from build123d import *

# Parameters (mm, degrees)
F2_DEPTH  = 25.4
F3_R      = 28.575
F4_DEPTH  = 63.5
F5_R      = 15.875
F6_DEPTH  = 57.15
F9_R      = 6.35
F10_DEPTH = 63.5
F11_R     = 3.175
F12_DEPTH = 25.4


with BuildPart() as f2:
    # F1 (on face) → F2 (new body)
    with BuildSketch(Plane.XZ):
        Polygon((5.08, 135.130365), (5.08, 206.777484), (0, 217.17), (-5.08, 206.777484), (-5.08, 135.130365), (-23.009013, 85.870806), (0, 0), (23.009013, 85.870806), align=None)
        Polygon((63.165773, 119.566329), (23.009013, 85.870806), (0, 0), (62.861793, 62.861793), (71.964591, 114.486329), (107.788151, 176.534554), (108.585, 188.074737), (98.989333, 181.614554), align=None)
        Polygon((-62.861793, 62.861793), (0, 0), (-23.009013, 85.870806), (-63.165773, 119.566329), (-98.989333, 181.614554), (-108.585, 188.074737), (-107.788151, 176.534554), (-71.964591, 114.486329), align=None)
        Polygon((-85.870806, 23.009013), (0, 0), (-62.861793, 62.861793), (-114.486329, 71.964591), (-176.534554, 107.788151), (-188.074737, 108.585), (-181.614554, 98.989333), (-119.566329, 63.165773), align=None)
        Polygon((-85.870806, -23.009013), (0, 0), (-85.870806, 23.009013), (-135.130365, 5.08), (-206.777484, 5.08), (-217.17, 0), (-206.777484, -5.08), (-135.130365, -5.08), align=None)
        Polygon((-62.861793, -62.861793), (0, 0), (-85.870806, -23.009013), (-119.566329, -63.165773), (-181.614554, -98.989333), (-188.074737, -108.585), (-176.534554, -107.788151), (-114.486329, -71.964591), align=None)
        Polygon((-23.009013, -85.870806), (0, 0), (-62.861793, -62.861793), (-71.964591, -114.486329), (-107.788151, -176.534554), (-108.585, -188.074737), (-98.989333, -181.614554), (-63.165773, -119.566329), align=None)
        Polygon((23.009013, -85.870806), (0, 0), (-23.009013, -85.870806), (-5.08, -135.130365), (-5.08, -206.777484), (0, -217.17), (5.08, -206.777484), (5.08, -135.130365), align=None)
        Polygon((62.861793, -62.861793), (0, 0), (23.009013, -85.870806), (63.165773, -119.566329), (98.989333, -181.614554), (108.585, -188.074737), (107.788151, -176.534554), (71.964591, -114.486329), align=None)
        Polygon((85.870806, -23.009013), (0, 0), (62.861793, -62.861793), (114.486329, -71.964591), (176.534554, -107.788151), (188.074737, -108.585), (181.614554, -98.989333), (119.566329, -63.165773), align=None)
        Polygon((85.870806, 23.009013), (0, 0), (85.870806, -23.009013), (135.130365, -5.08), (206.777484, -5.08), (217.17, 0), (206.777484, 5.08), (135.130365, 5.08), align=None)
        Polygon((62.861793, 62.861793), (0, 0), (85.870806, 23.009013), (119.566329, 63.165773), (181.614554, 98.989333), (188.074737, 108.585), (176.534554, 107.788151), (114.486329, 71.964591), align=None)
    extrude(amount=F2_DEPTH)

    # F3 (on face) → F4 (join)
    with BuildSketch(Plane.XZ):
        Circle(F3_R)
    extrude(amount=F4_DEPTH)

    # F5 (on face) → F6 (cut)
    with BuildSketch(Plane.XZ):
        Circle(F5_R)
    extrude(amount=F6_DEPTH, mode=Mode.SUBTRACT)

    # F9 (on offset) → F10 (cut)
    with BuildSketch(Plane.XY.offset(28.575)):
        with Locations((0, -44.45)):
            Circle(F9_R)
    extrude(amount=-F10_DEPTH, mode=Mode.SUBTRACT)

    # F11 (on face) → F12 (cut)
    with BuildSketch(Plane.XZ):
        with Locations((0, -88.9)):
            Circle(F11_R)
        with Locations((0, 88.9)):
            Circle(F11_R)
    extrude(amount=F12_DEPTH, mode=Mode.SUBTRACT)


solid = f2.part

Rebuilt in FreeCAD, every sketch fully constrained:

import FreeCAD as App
import Part
import Sketcher
from FreeCAD import Vector
Q = App.Units.Quantity


def add_polygon(sketch, points):
    """Adds a closed chain of lines whose ends are joined by coincident constraints."""
    first, n = sketch.GeometryCount, len(points)
    for a, b in zip(points, points[1:] + points[:1]):
        sketch.addGeometry(Part.LineSegment(App.Vector(*a, 0), App.Vector(*b, 0)), False)
    for i in range(n):
        sketch.addConstraint(Sketcher.Constraint("Coincident", first + i, 2, first + (i + 1) % n, 1))

doc = App.newDocument("Part")
body = doc.addObject("PartDesign::Body", "Body")

sketch1 = doc.addObject("Sketcher::SketchObject", "Sketch")
body.addObject(sketch1)
sketch1.AttachmentSupport = (doc.XZ_Plane, [""])
sketch1.MapMode = "FlatFace"
add_polygon(sketch1, [(5.08, 135.130365), (5.08, 206.777484), (0, 217.17), (-5.08, 206.777484), (-5.08, 135.130365), (-23.009013, 85.870806), (-63.165773, 119.566329), (-98.989333, 181.614554), (-108.585, 188.074737), (-107.788151, 176.534554), (-71.964591, 114.486329), (-62.861793, 62.861793), (-114.486329, 71.964591), (-176.534554, 107.788151), (-188.074737, 108.585), (-181.614554, 98.989333), (-119.566329, 63.165773), (-85.870806, 23.009013), (-135.130365, 5.08), (-206.777484, 5.08), (-217.17, 0), (-206.777484, -5.08), (-135.130365, -5.08), (-85.870806, -23.009013), (-119.566329, -63.165773), (-181.614554, -98.989333), (-188.074737, -108.585), (-176.534554, -107.788151), (-114.486329, -71.964591), (-62.861793, -62.861793), (-71.964591, -114.486329), (-107.788151, -176.534554), (-108.585, -188.074737), (-98.989333, -181.614554), (-63.165773, -119.566329), (-23.009013, -85.870806), (-5.08, -135.130365), (-5.08, -206.777484), (0, -217.17), (5.08, -206.777484), (5.08, -135.130365), (23.009013, -85.870806), (63.165773, -119.566329), (98.989333, -181.614554), (108.585, -188.074737), (107.788151, -176.534554), (71.964591, -114.486329), (62.861793, -62.861793), (114.486329, -71.964591), (176.534554, -107.788151), (188.074737, -108.585), (181.614554, -98.989333), (119.566329, -63.165773), (85.870806, -23.009013), (135.130365, -5.08), (206.777484, -5.08), (217.17, 0), (206.777484, 5.08), (135.130365, 5.08), (85.870806, 23.009013), (119.566329, 63.165773), (181.614554, 98.989333), (188.074737, 108.585), (176.534554, 107.788151), (114.486329, 71.964591), (62.861793, 62.861793), (71.964591, 114.486329), (107.788151, 176.534554), (108.585, 188.074737), (98.989333, 181.614554), (63.165773, 119.566329), (23.009013, 85.870806)])
sketch1.addConstraint(Sketcher.Constraint("Vertical", 0))
sketch1.addConstraint(Sketcher.Constraint("Vertical", 3))
sketch1.addConstraint(Sketcher.Constraint("Horizontal", 18))
sketch1.addConstraint(Sketcher.Constraint("Horizontal", 21))
sketch1.addConstraint(Sketcher.Constraint("Vertical", 36))
sketch1.addConstraint(Sketcher.Constraint("Vertical", 39))
sketch1.addConstraint(Sketcher.Constraint("Horizontal", 54))
sketch1.addConstraint(Sketcher.Constraint("Horizontal", 57))
sketch1.addConstraint(Sketcher.Constraint("Symmetric", 0, 2, 36, 2, -1, 1))
sketch1.addConstraint(Sketcher.Constraint("Symmetric", 1, 2, 37, 2, -1, 1))
sketch1.addConstraint(Sketcher.Constraint("Symmetric", 2, 2, 38, 2, -1, 1))
sketch1.addConstraint(Sketcher.Constraint("Symmetric", 4, 2, 40, 2, -1, 1))
sketch1.addConstraint(Sketcher.Constraint("Symmetric", 5, 2, 41, 2, -1, 1))
sketch1.addConstraint(Sketcher.Constraint("Symmetric", 6, 2, 42, 2, -1, 1))
sketch1.addConstraint(Sketcher.Constraint("Symmetric", 7, 2, 43, 2, -1, 1))
sketch1.addConstraint(Sketcher.Constraint("Symmetric", 8, 2, 44, 2, -1, 1))
sketch1.addConstraint(Sketcher.Constraint("Symmetric", 9, 2, 45, 2, -1, 1))
sketch1.addConstraint(Sketcher.Constraint("Symmetric", 10, 2, 46, 2, -1, 1))
sketch1.addConstraint(Sketcher.Constraint("Symmetric", 11, 2, 47, 2, -1, 1))
sketch1.addConstraint(Sketcher.Constraint("Symmetric", 12, 2, 48, 2, -1, 1))
sketch1.addConstraint(Sketcher.Constraint("Symmetric", 13, 2, 49, 2, -1, 1))
sketch1.addConstraint(Sketcher.Constraint("Symmetric", 14, 2, 50, 2, -1, 1))
sketch1.addConstraint(Sketcher.Constraint("Symmetric", 15, 2, 51, 2, -1, 1))
sketch1.addConstraint(Sketcher.Constraint("Symmetric", 16, 2, 52, 2, -1, 1))
sketch1.addConstraint(Sketcher.Constraint("Symmetric", 17, 2, 53, 2, -1, 1))
sketch1.addConstraint(Sketcher.Constraint("Symmetric", 19, 2, 55, 2, -1, 1))
sketch1.addConstraint(Sketcher.Constraint("Symmetric", 20, 2, 56, 2, -1, 1))
sketch1.addConstraint(Sketcher.Constraint("Symmetric", 22, 2, 58, 2, -1, 1))
sketch1.addConstraint(Sketcher.Constraint("Symmetric", 23, 2, 59, 2, -1, 1))
sketch1.addConstraint(Sketcher.Constraint("Symmetric", 24, 2, 60, 2, -1, 1))
sketch1.addConstraint(Sketcher.Constraint("Symmetric", 25, 2, 61, 2, -1, 1))
sketch1.addConstraint(Sketcher.Constraint("Symmetric", 26, 2, 62, 2, -1, 1))
sketch1.addConstraint(Sketcher.Constraint("Symmetric", 27, 2, 63, 2, -1, 1))
sketch1.addConstraint(Sketcher.Constraint("Symmetric", 28, 2, 64, 2, -1, 1))
sketch1.addConstraint(Sketcher.Constraint("Symmetric", 29, 2, 65, 2, -1, 1))
sketch1.addConstraint(Sketcher.Constraint("Symmetric", 30, 2, 66, 2, -1, 1))
sketch1.addConstraint(Sketcher.Constraint("Symmetric", 31, 2, 67, 2, -1, 1))
sketch1.addConstraint(Sketcher.Constraint("Symmetric", 32, 2, 68, 2, -1, 1))
sketch1.addConstraint(Sketcher.Constraint("Symmetric", 33, 2, 69, 2, -1, 1))
sketch1.addConstraint(Sketcher.Constraint("Symmetric", 34, 2, 70, 2, -1, 1))
sketch1.addConstraint(Sketcher.Constraint("Symmetric", 0, 2, 2, 2, -2))
sketch1.addConstraint(Sketcher.Constraint("Symmetric", 34, 2, 40, 2, -2))
sketch1.addConstraint(Sketcher.Constraint("Symmetric", 33, 2, 41, 2, -2))
sketch1.addConstraint(Sketcher.Constraint("Symmetric", 32, 2, 42, 2, -2))
sketch1.addConstraint(Sketcher.Constraint("Symmetric", 31, 2, 43, 2, -2))
sketch1.addConstraint(Sketcher.Constraint("Symmetric", 30, 2, 44, 2, -2))
sketch1.addConstraint(Sketcher.Constraint("Symmetric", 29, 2, 45, 2, -2))
sketch1.addConstraint(Sketcher.Constraint("Symmetric", 28, 2, 46, 2, -2))
sketch1.addConstraint(Sketcher.Constraint("Symmetric", 27, 2, 47, 2, -2))
sketch1.addConstraint(Sketcher.Constraint("Symmetric", 26, 2, 48, 2, -2))
sketch1.addConstraint(Sketcher.Constraint("Symmetric", 25, 2, 49, 2, -2))
sketch1.addConstraint(Sketcher.Constraint("Symmetric", 24, 2, 50, 2, -2))
sketch1.addConstraint(Sketcher.Constraint("Symmetric", 23, 2, 51, 2, -2))
sketch1.addConstraint(Sketcher.Constraint("Symmetric", 22, 2, 52, 2, -2))
sketch1.addConstraint(Sketcher.Constraint("Symmetric", 21, 2, 53, 2, -2))
sketch1.addConstraint(Sketcher.Constraint("PointOnObject", 1, 2, -2))
sketch1.addConstraint(Sketcher.Constraint("PointOnObject", 19, 2, -1))
sketch1.addConstraint(Sketcher.Constraint("Parallel", 6, 9))
sketch1.addConstraint(Sketcher.Constraint("Parallel", 12, 15))
sketch1.addConstraint(Sketcher.Constraint("Perpendicular", 1, 19))
sketch1.addConstraint(Sketcher.Constraint("Perpendicular", 2, 20))
sketch1.addConstraint(Sketcher.Constraint("Perpendicular", 4, 22))
sketch1.addConstraint(Sketcher.Constraint("Perpendicular", 5, 23))
sketch1.addConstraint(Sketcher.Constraint("Perpendicular", 9, 24))
sketch1.addConstraint(Sketcher.Constraint("Perpendicular", 7, 25))
sketch1.addConstraint(Sketcher.Constraint("Perpendicular", 8, 26))
sketch1.addConstraint(Sketcher.Constraint("Perpendicular", 10, 28))
sketch1.addConstraint(Sketcher.Constraint("Perpendicular", 17, 35))
sketch1.addConstraint(Sketcher.Constraint("Perpendicular", 22, 40))
sketch1.addConstraint(Sketcher.Constraint("Perpendicular", 37, 55))
sketch1.addConstraint(Sketcher.Constraint("Perpendicular", 40, 58))
sketch1.addConstraint(Sketcher.Constraint("Perpendicular", 53, 71))
sketch1.addConstraint(Sketcher.Constraint("Equal", 57, 0))
sketch1.addConstraint(Sketcher.Constraint("Equal", 4, 5))
sketch1.addConstraint(Sketcher.Constraint("Equal", 2, 7))
sketch1.addConstraint(Sketcher.Constraint("Equal", 7, 8))
sketch1.addConstraint(Sketcher.Constraint("Equal", 6, 9))
sketch1.addConstraint(Sketcher.Constraint("Equal", 5, 10))
sketch1.addConstraint(Sketcher.Constraint("Equal", 10, 11))
sketch1.addConstraint(Sketcher.Constraint("Equal", 9, 12))
sketch1.addConstraint(Sketcher.Constraint("Equal", 8, 13))
sketch1.addConstraint(Sketcher.Constraint("Equal", 13, 14))
sketch1.addConstraint(Sketcher.Constraint("Equal", 12, 15))
sketch1.addConstraint(Sketcher.Constraint("Equal", 11, 16))
sketch1.addConstraint(Sketcher.Constraint("Equal", 16, 17))
sketch1.addConstraint(Sketcher.Constraint("Equal", 14, 19))
sketch1.addConstraint(Sketcher.Constraint("Angle", 4, Q("-110 deg")))
sketch1.addConstraint(Sketcher.Constraint("Angle", 5, Q("140 deg")))
sketch1.addConstraint(Sketcher.Constraint("Angle", 6, Q("120 deg")))
sketch1.addConstraint(Sketcher.Constraint("Angle", 10, Q("-80.000001 deg")))
sketch1.addConstraint(Sketcher.Constraint("DistanceX", -1, 1, 0, 2, Q("0.2 in")))
sketch1.addConstraint(Sketcher.Constraint("DistanceY", -1, 1, 1, 2, Q("8.55 in")))
sketch1.addConstraint(Sketcher.Constraint("Angle", 1, Q("116.05 deg")))
sketch1.addConstraint(Sketcher.Constraint("Angle", 7, Q("146.049999 deg")))
sketch1.addConstraint(Sketcher.Constraint("Angle", 8, Q("-86.049999 deg")))
sketch1.addConstraint(Sketcher.Constraint("DistanceX", 7, 2, -1, 1, Q("4.275 in")))
sketch1.addConstraint(Sketcher.Constraint("DistanceX", 18, 2, 18, 1, 71.647119))
pad1 = doc.addObject("PartDesign::Pad", "Pad")
body.addObject(pad1)
pad1.Profile = sketch1
pad1.Length = Q("1 in")

sketch2 = doc.addObject("Sketcher::SketchObject", "Sketch001")
body.addObject(sketch2)
sketch2.AttachmentSupport = (doc.XZ_Plane, [""])
sketch2.MapMode = "FlatFace"
sketch2.addGeometry(Part.Circle(Vector(0, 0, 0), Vector(0, 0, 1), 28.575), False)
sketch2.addConstraint(Sketcher.Constraint("Coincident", 0, 3, -1, 1))
sketch2.addConstraint(Sketcher.Constraint("Diameter", 0, Q("2.25 in")))
pad2 = doc.addObject("PartDesign::Pad", "Pad001")
body.addObject(pad2)
pad2.Profile = sketch2
pad2.Length = Q("2.5 in")

sketch3 = doc.addObject("Sketcher::SketchObject", "Sketch002")
body.addObject(sketch3)
sketch3.AttachmentSupport = (doc.XZ_Plane, [""])
sketch3.MapMode = "FlatFace"
sketch3.addGeometry(Part.Circle(Vector(0, 0, 0), Vector(0, 0, 1), 15.875), False)
sketch3.addConstraint(Sketcher.Constraint("Coincident", 0, 3, -1, 1))
sketch3.addConstraint(Sketcher.Constraint("Diameter", 0, Q("1.25 in")))
pocket1 = doc.addObject("PartDesign::Pocket", "Pocket")
body.addObject(pocket1)
pocket1.Profile = sketch3
pocket1.Length = Q("2.25 in")
pocket1.Reversed = True

sketch4 = doc.addObject("Sketcher::SketchObject", "Sketch003")
body.addObject(sketch4)
sketch4.AttachmentSupport = (doc.XY_Plane, [""])
sketch4.MapMode = "FlatFace"
sketch4.AttachmentOffset = App.Placement(Vector(0, 0, 1.125 * 25.4), App.Rotation())
sketch4.addGeometry(Part.Circle(Vector(0, -44.45, 0), Vector(0, 0, 1), 6.35), False)
sketch4.addConstraint(Sketcher.Constraint("PointOnObject", 0, 3, -2))
sketch4.addConstraint(Sketcher.Constraint("Diameter", 0, Q("0.5 in")))
sketch4.addConstraint(Sketcher.Constraint("DistanceY", 0, 3, -1, 1, Q("1.75 in")))
pocket2 = doc.addObject("PartDesign::Pocket", "Pocket001")
body.addObject(pocket2)
pocket2.Profile = sketch4
pocket2.Length = Q("2.5 in")

sketch5 = doc.addObject("Sketcher::SketchObject", "Sketch004")
body.addObject(sketch5)
sketch5.AttachmentSupport = (doc.XZ_Plane, [""])
sketch5.MapMode = "FlatFace"
sketch5.addGeometry(Part.Circle(Vector(0, -88.9, 0), Vector(0, 0, 1), 3.175), False)
sketch5.addGeometry(Part.Circle(Vector(0, 88.9, 0), Vector(0, 0, 1), 3.175), False)
sketch5.addConstraint(Sketcher.Constraint("Equal", 0, 1))
sketch5.addConstraint(Sketcher.Constraint("Symmetric", 0, 3, 1, 3, -1, 1))
sketch5.addConstraint(Sketcher.Constraint("PointOnObject", 0, 3, -2))
sketch5.addConstraint(Sketcher.Constraint("Diameter", 0, Q("0.25 in")))
sketch5.addConstraint(Sketcher.Constraint("DistanceY", 0, 3, 1, 3, Q("7 in")))
pocket3 = doc.addObject("PartDesign::Pocket", "Pocket002")
body.addObject(pocket3)
pocket3.Profile = sketch5
pocket3.Length = Q("1 in")
pocket3.Reversed = True

doc.recompute()
